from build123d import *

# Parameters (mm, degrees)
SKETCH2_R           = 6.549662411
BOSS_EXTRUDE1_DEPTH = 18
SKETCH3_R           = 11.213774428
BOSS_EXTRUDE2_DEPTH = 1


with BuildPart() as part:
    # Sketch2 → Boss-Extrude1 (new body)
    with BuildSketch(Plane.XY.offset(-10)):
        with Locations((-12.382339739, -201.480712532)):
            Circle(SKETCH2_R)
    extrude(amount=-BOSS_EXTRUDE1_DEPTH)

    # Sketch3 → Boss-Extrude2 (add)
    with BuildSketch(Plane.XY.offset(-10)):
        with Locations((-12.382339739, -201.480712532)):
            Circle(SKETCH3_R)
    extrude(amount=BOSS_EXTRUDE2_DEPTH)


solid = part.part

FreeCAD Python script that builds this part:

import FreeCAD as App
import Part
import Sketcher
Q = App.Units.Quantity

doc = App.newDocument("Part")
body = doc.addObject("PartDesign::Body", "Body")

# Sketch on XY plane
sketch1 = body.newObject("Sketcher::SketchObject", "Sketch")
sketch1.AttachmentSupport = (doc.getObject("XY_Plane"), [""])
sketch1.MapMode = "FlatFace"
sketch1.AttachmentOffset = App.Placement(App.Vector(0, 0, -10), App.Rotation())
sketch1.addGeometry(Part.Circle(App.Vector(-12, -201, 0), App.Vector(0, 0, 1), 7), False)
sketch1.addConstraint([
    Sketcher.Constraint("Diameter", 0, Q("13.099325 mm")),
    Sketcher.Constraint("DistanceX", 0, 3, -1, 1, Q("12.38234 mm")),
    Sketcher.Constraint("DistanceY", 0, 3, -1, 1, Q("201.480713 mm")),
])
pad1 = body.newObject("PartDesign::Pad", "Pad")
pad1.Profile = sketch1
pad1.Length = 18
pad1.Reversed = True

# Sketch on XY plane
sketch2 = body.newObject("Sketcher::SketchObject", "Sketch001")
sketch2.AttachmentSupport = (doc.getObject("XY_Plane"), [""])
sketch2.MapMode = "FlatFace"
sketch2.AttachmentOffset = App.Placement(App.Vector(0, 0, -10), App.Rotation())
sketch2.addGeometry(Part.Circle(App.Vector(-12, -201, 0), App.Vector(0, 0, 1), 11), False)
sketch2.addConstraint([
    Sketcher.Constraint("Diameter", 0, Q("22.427549 mm")),
    Sketcher.Constraint("DistanceX", 0, 3, -1, 1, Q("12.38234 mm")),
    Sketcher.Constraint("DistanceY", 0, 3, -1, 1, Q("201.480713 mm")),
])
pad2 = body.newObject("PartDesign::Pad", "Pad001")
pad2.Profile = sketch2
pad2.Length = 1

doc.recompute()
